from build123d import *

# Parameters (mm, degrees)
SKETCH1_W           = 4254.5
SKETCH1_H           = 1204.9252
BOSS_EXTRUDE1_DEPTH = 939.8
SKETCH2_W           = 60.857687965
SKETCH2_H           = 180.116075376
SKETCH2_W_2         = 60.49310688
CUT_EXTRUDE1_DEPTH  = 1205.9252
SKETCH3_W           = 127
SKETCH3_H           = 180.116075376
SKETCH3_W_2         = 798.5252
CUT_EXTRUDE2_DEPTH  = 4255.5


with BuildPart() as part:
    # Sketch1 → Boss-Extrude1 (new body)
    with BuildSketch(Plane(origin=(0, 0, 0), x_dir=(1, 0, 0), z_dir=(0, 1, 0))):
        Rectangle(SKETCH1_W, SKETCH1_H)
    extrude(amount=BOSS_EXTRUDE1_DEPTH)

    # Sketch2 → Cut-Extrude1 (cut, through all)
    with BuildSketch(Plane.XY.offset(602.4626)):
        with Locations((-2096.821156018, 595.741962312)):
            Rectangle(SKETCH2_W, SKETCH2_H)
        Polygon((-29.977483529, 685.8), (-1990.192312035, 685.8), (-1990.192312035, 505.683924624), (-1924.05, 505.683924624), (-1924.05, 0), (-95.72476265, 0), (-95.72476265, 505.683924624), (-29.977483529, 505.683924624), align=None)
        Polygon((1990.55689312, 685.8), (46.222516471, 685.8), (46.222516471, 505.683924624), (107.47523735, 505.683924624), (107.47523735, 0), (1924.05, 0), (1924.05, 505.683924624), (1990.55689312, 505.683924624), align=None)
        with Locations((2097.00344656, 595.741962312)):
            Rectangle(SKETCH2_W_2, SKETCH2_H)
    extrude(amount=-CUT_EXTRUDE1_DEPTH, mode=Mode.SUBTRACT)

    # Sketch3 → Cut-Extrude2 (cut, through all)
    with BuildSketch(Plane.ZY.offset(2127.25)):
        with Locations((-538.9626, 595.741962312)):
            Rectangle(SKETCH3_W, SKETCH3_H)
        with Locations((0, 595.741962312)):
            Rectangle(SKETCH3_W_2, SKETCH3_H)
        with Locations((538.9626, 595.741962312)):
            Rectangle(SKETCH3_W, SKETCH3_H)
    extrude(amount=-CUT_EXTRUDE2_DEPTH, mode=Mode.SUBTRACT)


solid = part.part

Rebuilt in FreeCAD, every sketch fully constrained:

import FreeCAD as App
import Part
import Sketcher
Q = App.Units.Quantity


def add_polygon(sketch, points):
    """Adds a closed chain of lines whose ends are joined by coincident constraints."""
    first, n = sketch.GeometryCount, len(points)
    for a, b in zip(points, points[1:] + points[:1]):
        sketch.addGeometry(Part.LineSegment(App.Vector(*a, 0), App.Vector(*b, 0)), False)
    for i in range(n):
        sketch.addConstraint(Sketcher.Constraint("Coincident", first + i, 2, first + (i + 1) % n, 1))

doc = App.newDocument("Part")
body = doc.addObject("PartDesign::Body", "Body")

sketch1 = doc.addObject("Sketcher::SketchObject", "Sketch")
body.addObject(sketch1)
sketch1.AttachmentSupport = (doc.XZ_Plane, [""])
sketch1.MapMode = "FlatFace"
add_polygon(sketch1, [(-2127.25, -602.4626), (-2127.25, 602.4626), (2127.25, 602.4626), (2127.25, -602.4626)])
sketch1.addConstraint([
    Sketcher.Constraint("Vertical", 0),
    Sketcher.Constraint("Horizontal", 1),
    Sketcher.Constraint("Vertical", 2),
    Sketcher.Constraint("Horizontal", 3),
    Sketcher.Constraint("Symmetric", 0, 2, 2, 2, -1, 1),
    Sketcher.Constraint("DistanceX", 1, 1, 1, 2, Q("167.5 in")),
    Sketcher.Constraint("DistanceY", 0, 1, 0, 2, Q("47.438 in")),
])
pad1 = doc.addObject("PartDesign::Pad", "Pad")
body.addObject(pad1)
pad1.Profile = sketch1
pad1.Length = Q("37 in")
pad1.Reversed = True

sketch2 = doc.addObject("Sketcher::SketchObject", "Sketch001")
body.addObject(sketch2)
sketch2.AttachmentSupport = (doc.XY_Plane, [""])
sketch2.MapMode = "FlatFace"
sketch2.AttachmentOffset = App.Placement(App.Vector(0, 0, 23.719 * 25.4), App.Rotation())
add_polygon(sketch2, [(-2127.25, 685.8), (-2127.25, 505.683925), (-2066.392312, 505.683925), (-2066.392312, 685.8)])
add_polygon(sketch2, [(-29.977484, 685.8), (-1990.192312, 685.8), (-1990.192312, 505.683925), (-1924.05, 505.683925), (-1924.05, 0), (-95.724763, 0), (-95.724763, 505.683925), (-29.977484, 505.683925)])
add_polygon(sketch2, [(1990.556893, 685.8), (46.222516, 685.8), (46.222516, 505.683925), (107.475237, 505.683925), (107.475237, 0), (1924.05, 0), (1924.05, 505.683925), (1990.556893, 505.683925)])
add_polygon(sketch2, [(2066.756893, 685.8), (2066.756893, 505.683925), (2127.25, 505.683925), (2127.25, 685.8)])
sketch2.addConstraint([
    Sketcher.Constraint("Vertical", 0),
    Sketcher.Constraint("Horizontal", 1),
    Sketcher.Constraint("Vertical", 2),
    Sketcher.Constraint("Horizontal", 3),
    Sketcher.Constraint("Horizontal", 4),
    Sketcher.Constraint("Vertical", 5),
    Sketcher.Constraint("Horizontal", 6),
    Sketcher.Constraint("Vertical", 7),
    Sketcher.Constraint("Horizontal", 8),
    Sketcher.Constraint("Vertical", 9),
    Sketcher.Constraint("Horizontal", 10),
    Sketcher.Constraint("Vertical", 11),
    Sketcher.Constraint("Horizontal", 12),
    Sketcher.Constraint("Vertical", 13),
    Sketcher.Constraint("Horizontal", 14),
    Sketcher.Constraint("Vertical", 15),
    Sketcher.Constraint("Horizontal", 16),
    Sketcher.Constraint("Vertical", 17),
    Sketcher.Constraint("Horizontal", 18),
    Sketcher.Constraint("Vertical", 19),
    Sketcher.Constraint("Vertical", 20),
    Sketcher.Constraint("Horizontal", 21),
    Sketcher.Constraint("Vertical", 22),
    Sketcher.Constraint("Horizontal", 23),
    Sketcher.Constraint("Symmetric", 7, 2, 16, 2, -1, 1),
    Sketcher.Constraint("Symmetric", 0, 2, 21, 2, -2),
    Sketcher.Constraint("PointOnObject", 7, 2, -1),
    Sketcher.Constraint("Horizontal", 3, 2, 4, 2),
    Sketcher.Constraint("Horizontal", 1, 2, 5, 2),
    Sketcher.Constraint("Horizontal", 6, 2, 9, 2),
    Sketcher.Constraint("Horizontal", 11, 2, 12, 2),
    Sketcher.Constraint("Horizontal", 10, 2, 13, 2),
    Sketcher.Constraint("Horizontal", 14, 2, 17, 2),
    Sketcher.Constraint("Horizontal", 19, 2, 22, 2),
    Sketcher.Constraint("DistanceY", -1, 1, 2, 2, Q("27 in")),
    Sketcher.Constraint("DistanceX", 2, 2, 4, 2, Q("3 in")),
    Sketcher.Constraint("DistanceX", 0, 2, 6, 2, Q("8 in")),
    Sketcher.Constraint("DistanceX", 11, 2, 12, 2, Q("3 in")),
    Sketcher.Constraint("DistanceX", 9, 2, 14, 2, Q("8 in")),
    Sketcher.Constraint("DistanceX", 18, 2, 20, 2, Q("3 in")),
    Sketcher.Constraint("DistanceX", 0, 2, -1, 1, Q("83.75 in")),
    Sketcher.Constraint("DistanceX", 4, 2, 4, 1, 1960.214829),
    Sketcher.Constraint("DistanceX", 10, 1, 10, 2, 65.747279),
    Sketcher.Constraint("DistanceX", 1, 1, 1, 2, 60.857688),
    Sketcher.Constraint("DistanceX", 12, 2, 12, 1, 1944.334377),
    Sketcher.Constraint("DistanceY", 0, 2, 0, 1, 180.116075),
])
pocket1 = doc.addObject("PartDesign::Pocket", "Pocket")
body.addObject(pocket1)
pocket1.Profile = sketch2
pocket1.Type = "ThroughAll"

sketch3 = doc.addObject("Sketcher::SketchObject", "Sketch002")
body.addObject(sketch3)
sketch3.AttachmentSupport = (doc.YZ_Plane, [""])
sketch3.MapMode = "FlatFace"
sketch3.AttachmentOffset = App.Placement(App.Vector(0, 0, -83.75 * 25.4), App.Rotation())
add_polygon(sketch3, [(685.8, -602.4626), (505.683925, -602.4626), (505.683925, -475.4626), (685.8, -475.4626)])
add_polygon(sketch3, [(685.8, -399.2626), (505.683925, -399.2626), (505.683925, 399.2626), (685.8, 399.2626)])
add_polygon(sketch3, [(685.8, 475.4626), (505.683925, 475.4626), (505.683925, 602.4626), (685.8, 602.4626)])
sketch3.addConstraint([
    Sketcher.Constraint("Horizontal", 0),
    Sketcher.Constraint("Vertical", 1),
    Sketcher.Constraint("Horizontal", 2),
    Sketcher.Constraint("Vertical", 3),
    Sketcher.Constraint("Horizontal", 4),
    Sketcher.Constraint("Vertical", 5),
    Sketcher.Constraint("Horizontal", 6),
    Sketcher.Constraint("Vertical", 7),
    Sketcher.Constraint("Horizontal", 8),
    Sketcher.Constraint("Vertical", 9),
    Sketcher.Constraint("Horizontal", 10),
    Sketcher.Constraint("Vertical", 11),
    Sketcher.Constraint("Symmetric", 1, 2, 8, 2, -1),
    Sketcher.Constraint("Symmetric", 3, 2, 10, 2, -1),
    Sketcher.Constraint("Vertical", 1, 2, 4, 2),
    Sketcher.Constraint("Vertical", 3, 2, 6, 2),
    Sketcher.Constraint("DistanceY", 1, 1, 1, 2, Q("5 in")),
    Sketcher.Constraint("DistanceX", -1, 1, 2, 2, Q("27 in")),
    Sketcher.Constraint("DistanceY", 1, 2, 4, 2, Q("3 in")),
    Sketcher.Constraint("DistanceY", 5, 2, 8, 2, Q("3 in")),
    Sketcher.Constraint("DistanceY", 5, 1, 5, 2, Q("31.438 in")),
    Sketcher.Constraint("DistanceX", 0, 2, 0, 1, 180.116075),
])
pocket2 = doc.addObject("PartDesign::Pocket", "Pocket001")
body.addObject(pocket2)
pocket2.Profile = sketch3
pocket2.Type = "ThroughAll"
pocket2.Reversed = True

doc.recompute()
